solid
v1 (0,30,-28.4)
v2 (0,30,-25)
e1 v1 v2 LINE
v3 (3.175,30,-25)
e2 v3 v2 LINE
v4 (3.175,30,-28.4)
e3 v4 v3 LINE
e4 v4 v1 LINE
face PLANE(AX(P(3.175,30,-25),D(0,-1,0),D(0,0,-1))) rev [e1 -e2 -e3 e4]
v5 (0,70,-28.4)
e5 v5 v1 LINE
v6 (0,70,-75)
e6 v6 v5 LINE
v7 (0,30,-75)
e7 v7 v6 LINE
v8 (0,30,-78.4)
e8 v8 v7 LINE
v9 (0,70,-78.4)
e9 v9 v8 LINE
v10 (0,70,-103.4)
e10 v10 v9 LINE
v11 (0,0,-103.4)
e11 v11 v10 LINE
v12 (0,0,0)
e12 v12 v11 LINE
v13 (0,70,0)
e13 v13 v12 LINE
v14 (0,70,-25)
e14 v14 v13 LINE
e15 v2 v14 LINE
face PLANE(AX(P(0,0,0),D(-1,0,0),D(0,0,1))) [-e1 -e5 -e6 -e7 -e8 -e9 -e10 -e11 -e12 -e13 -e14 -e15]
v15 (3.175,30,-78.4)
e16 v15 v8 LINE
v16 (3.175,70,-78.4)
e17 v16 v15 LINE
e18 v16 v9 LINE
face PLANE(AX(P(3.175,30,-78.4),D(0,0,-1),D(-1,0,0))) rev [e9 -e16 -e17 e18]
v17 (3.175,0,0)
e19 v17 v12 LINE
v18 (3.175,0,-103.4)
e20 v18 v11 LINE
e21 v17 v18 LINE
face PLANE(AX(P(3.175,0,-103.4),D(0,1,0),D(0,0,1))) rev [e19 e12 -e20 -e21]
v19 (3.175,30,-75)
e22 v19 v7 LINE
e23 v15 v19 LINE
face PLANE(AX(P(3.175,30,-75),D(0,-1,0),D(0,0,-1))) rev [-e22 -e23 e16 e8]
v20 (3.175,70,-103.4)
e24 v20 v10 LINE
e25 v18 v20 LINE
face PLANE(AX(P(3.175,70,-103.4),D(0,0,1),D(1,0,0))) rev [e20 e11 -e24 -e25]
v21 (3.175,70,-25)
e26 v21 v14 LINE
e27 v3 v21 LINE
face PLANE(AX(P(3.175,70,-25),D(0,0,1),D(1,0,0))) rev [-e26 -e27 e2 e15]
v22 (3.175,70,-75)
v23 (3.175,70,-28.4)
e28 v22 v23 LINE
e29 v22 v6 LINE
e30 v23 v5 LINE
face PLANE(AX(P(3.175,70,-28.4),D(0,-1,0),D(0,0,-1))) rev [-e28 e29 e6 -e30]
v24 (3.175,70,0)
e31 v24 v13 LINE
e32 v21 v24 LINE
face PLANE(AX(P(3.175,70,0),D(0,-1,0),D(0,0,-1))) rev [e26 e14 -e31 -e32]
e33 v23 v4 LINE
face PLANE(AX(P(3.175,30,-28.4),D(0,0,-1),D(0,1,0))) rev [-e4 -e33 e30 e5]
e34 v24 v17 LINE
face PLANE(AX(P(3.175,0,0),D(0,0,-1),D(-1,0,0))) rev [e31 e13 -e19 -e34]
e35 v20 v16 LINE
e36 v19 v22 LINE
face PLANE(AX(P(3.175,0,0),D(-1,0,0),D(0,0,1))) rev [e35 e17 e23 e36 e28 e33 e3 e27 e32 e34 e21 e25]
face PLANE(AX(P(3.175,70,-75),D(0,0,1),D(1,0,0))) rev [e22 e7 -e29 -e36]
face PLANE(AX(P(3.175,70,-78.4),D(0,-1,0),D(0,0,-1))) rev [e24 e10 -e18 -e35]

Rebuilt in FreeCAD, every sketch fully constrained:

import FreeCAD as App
import Part
import Sketcher
from FreeCAD import Vector
Q = App.Units.Quantity


def add_polygon(sketch, points):
    """Adds a closed chain of lines whose ends are joined by coincident constraints."""
    first, n = sketch.GeometryCount, len(points)
    for a, b in zip(points, points[1:] + points[:1]):
        sketch.addGeometry(Part.LineSegment(App.Vector(*a, 0), App.Vector(*b, 0)), False)
    for i in range(n):
        sketch.addConstraint(Sketcher.Constraint("Coincident", first + i, 2, first + (i + 1) % n, 1))

doc = App.newDocument("Part")
body = doc.addObject("PartDesign::Body", "Body")

# Sketch on YZ plane
sketch1 = doc.addObject("Sketcher::SketchObject", "Sketch")
body.addObject(sketch1)
sketch1.AttachmentSupport = (doc.YZ_Plane, [""])
sketch1.MapMode = "FlatFace"
add_polygon(sketch1, [(70, 0), (0, 0), (0, -103.4), (70, -103.4), (70, -78.4), (30, -78.4), (30, -75), (70, -75), (70, -28.4), (30, -28.4), (30, -25), (70, -25)])  # lines 0-11
sketch1.addConstraint([
    Sketcher.Constraint("Horizontal", 0),
    Sketcher.Constraint("Vertical", 1),
    Sketcher.Constraint("Horizontal", 2),
    Sketcher.Constraint("Vertical", 3),
    Sketcher.Constraint("Horizontal", 4),
    Sketcher.Constraint("Vertical", 5),
    Sketcher.Constraint("Horizontal", 6),
    Sketcher.Constraint("Vertical", 7),
    Sketcher.Constraint("Horizontal", 8),
    Sketcher.Constraint("Vertical", 9),
    Sketcher.Constraint("Horizontal", 10),
    Sketcher.Constraint("Vertical", 11),
    Sketcher.Constraint("Coincident", 0, 2, -1, 1),
    Sketcher.Constraint("Vertical", 3, 2, 6, 2),
    Sketcher.Constraint("Vertical", 5, 2, 8, 2),
    Sketcher.Constraint("Vertical", 7, 2, 10, 2),
    Sketcher.Constraint("Equal", 5, 9),
    Sketcher.Constraint("Equal", 3, 11),
    Sketcher.Constraint("DistanceX", 0, 2, 0, 1, Q("70 mm")),
    Sketcher.Constraint("DistanceX", 4, 2, 4, 1, Q("40 mm")),
    Sketcher.Constraint("DistanceY", 3, 1, 3, 2, Q("25 mm")),
    Sketcher.Constraint("DistanceY", 1, 2, 1, 1, Q("103.4 mm")),
    Sketcher.Constraint("DistanceY", 5, 1, 5, 2, Q("3.4 mm")),
])
pad1 = doc.addObject("PartDesign::Pad", "Pad")
body.addObject(pad1)
pad1.Profile = sketch1
pad1.Length = 3.175

doc.recompute()
